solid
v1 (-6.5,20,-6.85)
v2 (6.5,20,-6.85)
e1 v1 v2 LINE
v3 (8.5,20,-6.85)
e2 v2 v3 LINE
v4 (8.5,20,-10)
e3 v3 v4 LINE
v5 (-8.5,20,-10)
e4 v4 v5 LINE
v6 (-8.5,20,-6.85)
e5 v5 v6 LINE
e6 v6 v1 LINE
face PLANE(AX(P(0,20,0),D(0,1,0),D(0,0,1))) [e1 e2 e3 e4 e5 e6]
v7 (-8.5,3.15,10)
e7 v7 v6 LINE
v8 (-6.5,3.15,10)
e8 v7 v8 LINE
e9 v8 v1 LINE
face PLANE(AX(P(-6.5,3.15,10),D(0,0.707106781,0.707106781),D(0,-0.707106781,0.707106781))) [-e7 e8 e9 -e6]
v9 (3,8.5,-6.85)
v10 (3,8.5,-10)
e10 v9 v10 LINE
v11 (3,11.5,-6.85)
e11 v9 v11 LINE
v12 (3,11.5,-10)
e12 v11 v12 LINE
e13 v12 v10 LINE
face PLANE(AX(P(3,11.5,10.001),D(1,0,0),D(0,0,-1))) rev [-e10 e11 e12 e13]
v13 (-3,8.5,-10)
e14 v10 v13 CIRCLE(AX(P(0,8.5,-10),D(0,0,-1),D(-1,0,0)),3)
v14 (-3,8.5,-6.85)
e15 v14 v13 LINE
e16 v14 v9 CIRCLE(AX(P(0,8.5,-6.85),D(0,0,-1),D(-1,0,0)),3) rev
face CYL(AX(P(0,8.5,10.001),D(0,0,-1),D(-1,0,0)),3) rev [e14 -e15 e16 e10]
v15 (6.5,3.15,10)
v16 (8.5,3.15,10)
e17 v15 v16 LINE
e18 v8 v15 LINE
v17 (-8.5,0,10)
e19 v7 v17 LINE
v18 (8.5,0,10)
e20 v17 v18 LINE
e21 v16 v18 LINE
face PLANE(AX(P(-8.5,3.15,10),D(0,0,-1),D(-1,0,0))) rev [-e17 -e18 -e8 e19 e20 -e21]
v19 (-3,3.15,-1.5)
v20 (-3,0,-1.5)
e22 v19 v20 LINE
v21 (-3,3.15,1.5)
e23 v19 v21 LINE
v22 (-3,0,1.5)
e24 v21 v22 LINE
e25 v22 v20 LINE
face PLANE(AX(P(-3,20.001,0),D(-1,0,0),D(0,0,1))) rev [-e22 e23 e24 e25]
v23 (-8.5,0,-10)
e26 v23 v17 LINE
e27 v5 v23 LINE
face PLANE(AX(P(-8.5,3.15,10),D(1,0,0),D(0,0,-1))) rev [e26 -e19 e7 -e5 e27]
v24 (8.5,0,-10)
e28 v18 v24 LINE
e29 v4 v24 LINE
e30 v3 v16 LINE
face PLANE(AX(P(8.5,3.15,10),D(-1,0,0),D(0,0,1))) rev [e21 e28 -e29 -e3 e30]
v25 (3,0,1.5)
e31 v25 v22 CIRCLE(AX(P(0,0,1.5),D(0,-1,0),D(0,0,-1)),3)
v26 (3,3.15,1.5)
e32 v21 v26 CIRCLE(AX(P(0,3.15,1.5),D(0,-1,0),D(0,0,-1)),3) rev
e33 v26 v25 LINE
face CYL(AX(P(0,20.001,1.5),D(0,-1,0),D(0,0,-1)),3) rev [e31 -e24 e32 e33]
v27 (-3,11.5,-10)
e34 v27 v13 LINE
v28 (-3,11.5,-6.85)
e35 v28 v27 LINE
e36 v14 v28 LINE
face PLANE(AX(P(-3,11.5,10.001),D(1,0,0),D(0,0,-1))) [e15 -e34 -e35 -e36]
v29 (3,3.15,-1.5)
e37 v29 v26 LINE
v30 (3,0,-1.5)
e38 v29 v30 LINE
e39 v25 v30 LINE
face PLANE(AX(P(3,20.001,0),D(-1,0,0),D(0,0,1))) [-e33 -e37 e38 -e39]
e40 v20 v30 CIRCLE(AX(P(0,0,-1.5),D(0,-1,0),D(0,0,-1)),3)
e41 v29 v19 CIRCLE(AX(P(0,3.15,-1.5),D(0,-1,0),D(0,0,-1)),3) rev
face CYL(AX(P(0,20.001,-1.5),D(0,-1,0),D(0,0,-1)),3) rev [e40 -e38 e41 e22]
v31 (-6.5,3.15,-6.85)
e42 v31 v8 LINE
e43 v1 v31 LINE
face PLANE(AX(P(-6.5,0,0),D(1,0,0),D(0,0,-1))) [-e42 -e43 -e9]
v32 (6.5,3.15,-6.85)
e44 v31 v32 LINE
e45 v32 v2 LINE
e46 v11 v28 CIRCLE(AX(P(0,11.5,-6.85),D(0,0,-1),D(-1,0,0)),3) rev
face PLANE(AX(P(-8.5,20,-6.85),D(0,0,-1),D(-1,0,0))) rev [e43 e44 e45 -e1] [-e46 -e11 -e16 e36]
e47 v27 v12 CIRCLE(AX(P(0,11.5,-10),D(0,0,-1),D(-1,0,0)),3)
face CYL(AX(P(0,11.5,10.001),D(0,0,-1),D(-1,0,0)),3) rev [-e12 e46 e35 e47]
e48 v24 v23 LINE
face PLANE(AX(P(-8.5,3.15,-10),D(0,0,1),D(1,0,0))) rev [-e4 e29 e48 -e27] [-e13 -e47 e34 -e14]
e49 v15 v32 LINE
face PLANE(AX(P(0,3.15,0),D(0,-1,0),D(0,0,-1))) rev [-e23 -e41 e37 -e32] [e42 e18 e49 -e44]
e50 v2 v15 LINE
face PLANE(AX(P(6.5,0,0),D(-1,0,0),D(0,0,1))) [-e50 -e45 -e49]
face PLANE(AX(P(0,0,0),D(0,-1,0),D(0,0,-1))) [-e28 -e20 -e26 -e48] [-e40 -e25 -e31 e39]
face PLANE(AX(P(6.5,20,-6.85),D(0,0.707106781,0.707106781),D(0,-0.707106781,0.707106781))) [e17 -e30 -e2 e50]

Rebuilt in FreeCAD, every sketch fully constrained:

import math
import FreeCAD as App
import Part
import Sketcher
from FreeCAD import Vector

doc = App.newDocument("Part")
body = doc.addObject("PartDesign::Body", "Body")

# Sketch on XZ plane
sketch1 = body.newObject("Sketcher::SketchObject", "Sketch")
sketch1.AttachmentSupport = (doc.getObject("XZ_Plane"), [""])
sketch1.MapMode = "FlatFace"
sketch1.addGeometry([
    Part.LineSegment(Vector(-8, -10, 0), Vector(-8, 10, 0)),
    Part.LineSegment(Vector(-8, 10, 0), Vector(8, 10, 0)),
    Part.LineSegment(Vector(8, 10, 0), Vector(8, -10, 0)),
    Part.LineSegment(Vector(8, -10, 0), Vector(-8, -10, 0)),
], False)
sketch1.addConstraint([
    Sketcher.Constraint("Coincident", 0, 2, 1, 1),
    Sketcher.Constraint("Coincident", 1, 2, 2, 1),
    Sketcher.Constraint("Coincident", 2, 2, 3, 1),
    Sketcher.Constraint("Coincident", 3, 2, 0, 1),
    Sketcher.Constraint("Vertical", 0),
    Sketcher.Constraint("Horizontal", 1),
    Sketcher.Constraint("Vertical", 2),
    Sketcher.Constraint("Horizontal", 3),
    Sketcher.Constraint("Symmetric", 0, 2, 2, 2, -1, 1),
    Sketcher.Constraint("DistanceX", 1, 1, 1, 2, 17.0),
    Sketcher.Constraint("DistanceY", 0, 1, 0, 2, 20.0),
])
pad1 = body.newObject("PartDesign::Pad", "Pad")
pad1.Profile = sketch1
pad1.Length = 3.15
pad1.Reversed = True

# Sketch on XZ plane
sketch2 = body.newObject("Sketcher::SketchObject", "Sketch001")
sketch2.AttachmentSupport = (doc.getObject("XZ_Plane"), [""])
sketch2.MapMode = "FlatFace"
sketch2.AttachmentOffset = App.Placement(Vector(0, 0, -3.15), App.Rotation())
sketch2.addGeometry([
    Part.LineSegment(Vector(-8.5, -10, 0), Vector(-8.5, -6.8, 0)),
    Part.LineSegment(Vector(-8.5, -6.8, 0), Vector(8.5, -6.8, 0)),
    Part.LineSegment(Vector(8.5, -6.8, 0), Vector(8.5, -10, 0)),
    Part.LineSegment(Vector(8.5, -10, 0), Vector(-8.5, -10, 0)),
], False)
sketch2.addConstraint([
    Sketcher.Constraint("Coincident", 0, 2, 1, 1),
    Sketcher.Constraint("Coincident", 1, 2, 2, 1),
    Sketcher.Constraint("Coincident", 2, 2, 3, 1),
    Sketcher.Constraint("Coincident", 3, 2, 0, 1),
    Sketcher.Constraint("Vertical", 0),
    Sketcher.Constraint("Horizontal", 1),
    Sketcher.Constraint("Vertical", 2),
    Sketcher.Constraint("Horizontal", 3),
    Sketcher.Constraint("DistanceX", 1, 1, 1, 2, 17.0),
    Sketcher.Constraint("DistanceY", 2, 2, -1, 1, 10.0),
    Sketcher.Constraint("DistanceY", 0, 1, 0, 2, 3.15),
    Sketcher.Constraint("DistanceX", 0, 2, -1, 1, 8.5),
])
pad2 = body.newObject("PartDesign::Pad", "Pad001")
pad2.Profile = sketch2
pad2.Length = 16.85
pad2.Reversed = True

# Sketch on XZ plane
sketch3 = body.newObject("Sketcher::SketchObject", "Sketch002")
sketch3.AttachmentSupport = (doc.getObject("XZ_Plane"), [""])
sketch3.MapMode = "FlatFace"
sketch3.addGeometry([
    Part.ArcOfCircle(Part.Circle(Vector(0, -1.5, 0), Vector(0, 0, 1), 3), math.radians(180), math.radians(360)),
    Part.LineSegment(Vector(3, -1.5, 0), Vector(-3, -1.5, 0)),
], False)
sketch3.addConstraint([
    Sketcher.Constraint("Coincident", 0, 1, 1, 2),
    Sketcher.Constraint("Coincident", 1, 1, 0, 2),
    Sketcher.Constraint("Horizontal", 1),
    Sketcher.Constraint("PointOnObject", 0, 3, -2),
    Sketcher.Constraint("Radius", 0, 3.0),
    Sketcher.Constraint("DistanceY", 0, 3, -1, 1, 1.5),
    Sketcher.Constraint("DistanceY", 0, 1, -1, 1, 1.5),
])
pocket1 = body.newObject("PartDesign::Pocket", "Pocket")
pocket1.Profile = sketch3
pocket1.Type = "UpToFirst"

# Sketch on XZ plane
sketch4 = body.newObject("Sketcher::SketchObject", "Sketch003")
sketch4.AttachmentSupport = (doc.getObject("XZ_Plane"), [""])
sketch4.MapMode = "FlatFace"
sketch4.addGeometry(Part.Circle(Vector(0, 1.5, 0), Vector(0, 0, 1), 3), False)
sketch4.addConstraint([
    Sketcher.Constraint("PointOnObject", 0, 3, -2),
    Sketcher.Constraint("Diameter", 0, 6.0),
    Sketcher.Constraint("DistanceY", -1, 1, 0, 3, 1.5),
])
pocket2 = body.newObject("PartDesign::Pocket", "Pocket001")
pocket2.Profile = sketch4
pocket2.Type = "UpToFirst"

# Sketch on XZ plane
sketch5 = body.newObject("Sketcher::SketchObject", "Sketch004")
sketch5.AttachmentSupport = (doc.getObject("XZ_Plane"), [""])
sketch5.MapMode = "FlatFace"
sketch5.addGeometry(Part.Circle(Vector(0, -1.5, 0), Vector(0, 0, 1), 3), False)
sketch5.addConstraint([
    Sketcher.Constraint("PointOnObject", 0, 3, -2),
    Sketcher.Constraint("Diameter", 0, 6.0),
    Sketcher.Constraint("DistanceY", 0, 3, -1, 1, 1.5),
])
pocket3 = body.newObject("PartDesign::Pocket", "Pocket002")
pocket3.Profile = sketch5
pocket3.Type = "UpToFirst"

# Sketch on XZ plane
sketch6 = body.newObject("Sketcher::SketchObject", "Sketch005")
sketch6.AttachmentSupport = (doc.getObject("XZ_Plane"), [""])
sketch6.MapMode = "FlatFace"
sketch6.addGeometry([
    Part.LineSegment(Vector(0, -1.5, 0), Vector(3, -1.5, 0)),
    Part.ArcOfCircle(Part.Circle(Vector(0, -1.5, 0), Vector(0, 0, 1), 3), math.radians(0), math.radians(30)),
    Part.ArcOfCircle(Part.Circle(Vector(0, 1.5, 0), Vector(0, 0, 1), 3), math.radians(-90), math.radians(-30)),
], False)
sketch6.addConstraint([
    Sketcher.Constraint("Coincident", 0, 2, 1, 1),
    Sketcher.Constraint("Coincident", 1, 2, 2, 2),
    Sketcher.Constraint("Tangent", 2, 1, 0, 1),
    Sketcher.Constraint("Horizontal", 0),
    Sketcher.Constraint("Coincident", 2, 1, 1, 3),
    Sketcher.Constraint("Equal", 1, 2),
    Sketcher.Constraint("Symmetric", 1, 3, 2, 3, -1, 1),
    Sketcher.Constraint("Radius", 1, 3.0),
])
pocket4 = body.newObject("PartDesign::Pocket", "Pocket003")
pocket4.Profile = sketch6
pocket4.Length = 3.15

# Sketch on XZ plane
sketch7 = body.newObject("Sketcher::SketchObject", "Sketch006")
sketch7.AttachmentSupport = (doc.getObject("XZ_Plane"), [""])
sketch7.MapMode = "FlatFace"
sketch7.addGeometry([
    Part.ArcOfCircle(Part.Circle(Vector(0, 1.5, 0), Vector(0, 0, 1), 3), math.radians(-150), math.radians(-90)),
    Part.ArcOfCircle(Part.Circle(Vector(0, -1.5, 0), Vector(0, 0, 1), 3), math.radians(150), math.radians(180)),
    Part.LineSegment(Vector(-3, -1.5, 0), Vector(0, -1.5, 0)),
], False)
sketch7.addConstraint([
    Sketcher.Constraint("Coincident", 0, 1, 1, 1),
    Sketcher.Constraint("Coincident", 1, 2, 2, 1),
    Sketcher.Constraint("Tangent", 2, 2, 0, 2),
    Sketcher.Constraint("Horizontal", 2),
    Sketcher.Constraint("Coincident", 2, 2, 1, 3),
    Sketcher.Constraint("Equal", 0, 1),
    Sketcher.Constraint("Symmetric", 0, 3, 1, 3, -1, 1),
    Sketcher.Constraint("Radius", 0, 3.0),
])
pocket5 = body.newObject("PartDesign::Pocket", "Pocket004")
pocket5.Profile = sketch7
pocket5.Length = 3.15

# Sketch on XZ plane
sketch8 = body.newObject("Sketcher::SketchObject", "Sketch007")
sketch8.AttachmentSupport = (doc.getObject("XZ_Plane"), [""])
sketch8.MapMode = "FlatFace"
sketch8.addGeometry([
    Part.ArcOfCircle(Part.Circle(Vector(0, 1.5, 0), Vector(0, 0, 1), 3), math.radians(-30), math.radians(0)),
    Part.LineSegment(Vector(3, 1.5, 0), Vector(0, 1.5, 0)),
    Part.ArcOfCircle(Part.Circle(Vector(0, -1.5, 0), Vector(0, 0, 1), 3), math.radians(30), math.radians(90)),
], False)
sketch8.addConstraint([
    Sketcher.Constraint("Coincident", 0, 2, 1, 1),
    Sketcher.Constraint("Tangent", 1, 2, 2, 2),
    Sketcher.Constraint("Coincident", 2, 1, 0, 1),
    Sketcher.Constraint("Horizontal", 1),
    Sketcher.Constraint("Coincident", 1, 2, 0, 3),
    Sketcher.Constraint("Equal", 0, 2),
    Sketcher.Constraint("Symmetric", 0, 3, 2, 3, -1, 1),
    Sketcher.Constraint("Radius", 0, 3.0),
])
pocket6 = body.newObject("PartDesign::Pocket", "Pocket005")
pocket6.Profile = sketch8
pocket6.Length = 3.15

# Sketch on XZ plane
sketch9 = body.newObject("Sketcher::SketchObject", "Sketch008")
sketch9.AttachmentSupport = (doc.getObject("XZ_Plane"), [""])
sketch9.MapMode = "FlatFace"
sketch9.addGeometry([
    Part.ArcOfCircle(Part.Circle(Vector(0, -1.5, 0), Vector(0, 0, 1), 3), math.radians(90), math.radians(150)),
    Part.LineSegment(Vector(0, 1.5, 0), Vector(-3, 1.5, 0)),
    Part.ArcOfCircle(Part.Circle(Vector(0, 1.5, 0), Vector(0, 0, 1), 3), math.radians(180), math.radians(210)),
], False)
sketch9.addConstraint([
    Sketcher.Constraint("Tangent", 0, 1, 1, 1),
    Sketcher.Constraint("Coincident", 1, 2, 2, 1),
    Sketcher.Constraint("Coincident", 2, 2, 0, 2),
    Sketcher.Constraint("Horizontal", 1),
    Sketcher.Constraint("Coincident", 0, 1, 2, 3),
    Sketcher.Constraint("Equal", 0, 2),
    Sketcher.Constraint("Symmetric", 0, 3, 2, 3, -1, 1),
    Sketcher.Constraint("Radius", 0, 3.0),
])
pocket7 = body.newObject("PartDesign::Pocket", "Pocket006")
pocket7.Profile = sketch9
pocket7.Length = 3.15

# Sketch on XZ plane
sketch10 = body.newObject("Sketcher::SketchObject", "Sketch009")
sketch10.AttachmentSupport = (doc.getObject("XZ_Plane"), [""])
sketch10.MapMode = "FlatFace"
sketch10.addGeometry([
    Part.LineSegment(Vector(3, -1.5, 0), Vector(3, 1.5, 0)),
    Part.ArcOfCircle(Part.Circle(Vector(0, 1.5, 0), Vector(0, 0, 1), 3), math.radians(-30), math.radians(0)),
    Part.ArcOfCircle(Part.Circle(Vector(0, -1.5, 0), Vector(0, 0, 1), 3), math.radians(0), math.radians(30)),
], False)
sketch10.addConstraint([
    Sketcher.Constraint("Tangent", 0, 2, 1, 2),
    Sketcher.Constraint("Coincident", 1, 1, 2, 2),
    Sketcher.Constraint("Tangent", 2, 1, 0, 1),
    Sketcher.Constraint("Vertical", 0),
    Sketcher.Constraint("Equal", 1, 2),
    Sketcher.Constraint("Symmetric", 1, 3, 2, 3, -1, 1),
    Sketcher.Constraint("Radius", 1, 3.0),
    Sketcher.Constraint("DistanceY", 0, 1, 0, 2, 3.0),
])
pocket8 = body.newObject("PartDesign::Pocket", "Pocket007")
pocket8.Profile = sketch10
pocket8.Type = "UpToFirst"

# Sketch on XZ plane
sketch11 = body.newObject("Sketcher::SketchObject", "Sketch010")
sketch11.AttachmentSupport = (doc.getObject("XZ_Plane"), [""])
sketch11.MapMode = "FlatFace"
sketch11.addGeometry([
    Part.ArcOfCircle(Part.Circle(Vector(0, 1.5, 0), Vector(0, 0, 1), 3), math.radians(0), math.radians(180)),
    Part.LineSegment(Vector(-3, 1.5, 0), Vector(3, 1.5, 0)),
], False)
sketch11.addConstraint([
    Sketcher.Constraint("Coincident", 0, 1, 1, 2),
    Sketcher.Constraint("Coincident", 1, 1, 0, 2),
    Sketcher.Constraint("Horizontal", 1),
    Sketcher.Constraint("PointOnObject", 0, 3, -2),
    Sketcher.Constraint("Radius", 0, 3.0),
    Sketcher.Constraint("DistanceY", -1, 1, 0, 3, 1.5),
    Sketcher.Constraint("DistanceY", -1, 1, 0, 1, 1.5),
])
pocket9 = body.newObject("PartDesign::Pocket", "Pocket008")
pocket9.Profile = sketch11
pocket9.Length = 3.15

# Sketch on XZ plane
sketch12 = body.newObject("Sketcher::SketchObject", "Sketch011")
sketch12.AttachmentSupport = (doc.getObject("XZ_Plane"), [""])
sketch12.MapMode = "FlatFace"
sketch12.addGeometry([
    Part.LineSegment(Vector(0, -1.5, 0), Vector(3, -1.5, 0)),
    Part.ArcOfCircle(Part.Circle(Vector(0, -1.5, 0), Vector(0, 0, 1), 3), math.radians(0), math.radians(30)),
    Part.ArcOfCircle(Part.Circle(Vector(0, 1.5, 0), Vector(0, 0, 1), 3), math.radians(-90), math.radians(-30)),
], False)
sketch12.addConstraint([
    Sketcher.Constraint("Coincident", 0, 2, 1, 1),
    Sketcher.Constraint("Coincident", 1, 2, 2, 2),
    Sketcher.Constraint("Tangent", 2, 1, 0, 1),
    Sketcher.Constraint("Horizontal", 0),
    Sketcher.Constraint("Coincident", 2, 1, 1, 3),
    Sketcher.Constraint("Equal", 1, 2),
    Sketcher.Constraint("Symmetric", 1, 3, 2, 3, -1, 1),
    Sketcher.Constraint("Radius", 1, 3.0),
])
pocket10 = body.newObject("PartDesign::Pocket", "Pocket009")
pocket10.Profile = sketch12
pocket10.Length = 3.15

# Sketch on XZ plane
sketch13 = body.newObject("Sketcher::SketchObject", "Sketch012")
sketch13.AttachmentSupport = (doc.getObject("XZ_Plane"), [""])
sketch13.MapMode = "FlatFace"
sketch13.addGeometry([
    Part.ArcOfCircle(Part.Circle(Vector(0, 1.5, 0), Vector(0, 0, 1), 3), math.radians(-150), math.radians(-90)),
    Part.ArcOfCircle(Part.Circle(Vector(0, -1.5, 0), Vector(0, 0, 1), 3), math.radians(150), math.radians(180)),
    Part.LineSegment(Vector(-3, -1.5, 0), Vector(0, -1.5, 0)),
], False)
sketch13.addConstraint([
    Sketcher.Constraint("Coincident", 0, 1, 1, 1),
    Sketcher.Constraint("Coincident", 1, 2, 2, 1),
    Sketcher.Constraint("Tangent", 2, 2, 0, 2),
    Sketcher.Constraint("Horizontal", 2),
    Sketcher.Constraint("Coincident", 2, 2, 1, 3),
    Sketcher.Constraint("Equal", 0, 1),
    Sketcher.Constraint("Symmetric", 0, 3, 1, 3, -1, 1),
    Sketcher.Constraint("Radius", 0, 3.0),
])
pocket11 = body.newObject("PartDesign::Pocket", "Pocket010")
pocket11.Profile = sketch13
pocket11.Length = 3.15

# Sketch on XZ plane
sketch14 = body.newObject("Sketcher::SketchObject", "Sketch013")
sketch14.AttachmentSupport = (doc.getObject("XZ_Plane"), [""])
sketch14.MapMode = "FlatFace"
sketch14.addGeometry([
    Part.ArcOfCircle(Part.Circle(Vector(0, 1.5, 0), Vector(0, 0, 1), 3), math.radians(180), math.radians(210)),
    Part.LineSegment(Vector(-3, 1.5, 0), Vector(-3, -1.5, 0)),
    Part.ArcOfCircle(Part.Circle(Vector(0, -1.5, 0), Vector(0, 0, 1), 3), math.radians(150), math.radians(180)),
], False)
sketch14.addConstraint([
    Sketcher.Constraint("Tangent", 0, 1, 1, 1),
    Sketcher.Constraint("Tangent", 1, 2, 2, 2),
    Sketcher.Constraint("Coincident", 2, 1, 0, 2),
    Sketcher.Constraint("Vertical", 1),
    Sketcher.Constraint("Equal", 0, 2),
    Sketcher.Constraint("Symmetric", 0, 3, 2, 3, -1, 1),
    Sketcher.Constraint("Radius", 0, 3.0),
    Sketcher.Constraint("DistanceY", 1, 2, 1, 1, 3.0),
])
pocket12 = body.newObject("PartDesign::Pocket", "Pocket011")
pocket12.Profile = sketch14
pocket12.Type = "UpToFirst"

# Sketch on XZ plane
sketch15 = body.newObject("Sketcher::SketchObject", "Sketch014")
sketch15.AttachmentSupport = (doc.getObject("XZ_Plane"), [""])
sketch15.MapMode = "FlatFace"
sketch15.addGeometry([
    Part.ArcOfCircle(Part.Circle(Vector(0, 1.5, 0), Vector(0, 0, 1), 3), math.radians(-30), math.radians(0)),
    Part.LineSegment(Vector(3, 1.5, 0), Vector(0, 1.5, 0)),
    Part.ArcOfCircle(Part.Circle(Vector(0, -1.5, 0), Vector(0, 0, 1), 3), math.radians(30), math.radians(90)),
], False)
sketch15.addConstraint([
    Sketcher.Constraint("Coincident", 0, 2, 1, 1),
    Sketcher.Constraint("Tangent", 1, 2, 2, 2),
    Sketcher.Constraint("Coincident", 2, 1, 0, 1),
    Sketcher.Constraint("Horizontal", 1),
    Sketcher.Constraint("Coincident", 1, 2, 0, 3),
    Sketcher.Constraint("Equal", 0, 2),
    Sketcher.Constraint("Symmetric", 0, 3, 2, 3, -1, 1),
    Sketcher.Constraint("Radius", 0, 3.0),
])
pocket13 = body.newObject("PartDesign::Pocket", "Pocket012")
pocket13.Profile = sketch15
pocket13.Length = 3.15

# Sketch on XZ plane
sketch16 = body.newObject("Sketcher::SketchObject", "Sketch015")
sketch16.AttachmentSupport = (doc.getObject("XZ_Plane"), [""])
sketch16.MapMode = "FlatFace"
sketch16.addGeometry([
    Part.ArcOfCircle(Part.Circle(Vector(0, -1.5, 0), Vector(0, 0, 1), 3), math.radians(90), math.radians(150)),
    Part.LineSegment(Vector(0, 1.5, 0), Vector(-3, 1.5, 0)),
    Part.ArcOfCircle(Part.Circle(Vector(0, 1.5, 0), Vector(0, 0, 1), 3), math.radians(180), math.radians(210)),
], False)
sketch16.addConstraint([
    Sketcher.Constraint("Tangent", 0, 1, 1, 1),
    Sketcher.Constraint("Coincident", 1, 2, 2, 1),
    Sketcher.Constraint("Coincident", 2, 2, 0, 2),
    Sketcher.Constraint("Horizontal", 1),
    Sketcher.Constraint("Coincident", 0, 1, 2, 3),
    Sketcher.Constraint("Equal", 0, 2),
    Sketcher.Constraint("Symmetric", 0, 3, 2, 3, -1, 1),
    Sketcher.Constraint("Radius", 0, 3.0),
])
pocket14 = body.newObject("PartDesign::Pocket", "Pocket013")
pocket14.Profile = sketch16
pocket14.Length = 3.15

# Sketch on XY plane
sketch17 = body.newObject("Sketcher::SketchObject", "Sketch016")
sketch17.AttachmentSupport = (doc.getObject("XY_Plane"), [""])
sketch17.MapMode = "FlatFace"
sketch17.AttachmentOffset = App.Placement(Vector(0, 0, -10), App.Rotation())
sketch17.addGeometry(Part.Circle(Vector(0, 8.5, 0), Vector(0, 0, 1), 3), False)
sketch17.addConstraint([
    Sketcher.Constraint("PointOnObject", 0, 3, -2),
    Sketcher.Constraint("Diameter", 0, 6.0),
    Sketcher.Constraint("DistanceY", -1, 1, 0, 3, 8.5),
])
pocket15 = body.newObject("PartDesign::Pocket", "Pocket014")
pocket15.Profile = sketch17
pocket15.Type = "UpToFirst"
pocket15.Reversed = True

# Sketch on XY plane
sketch18 = body.newObject("Sketcher::SketchObject", "Sketch017")
sketch18.AttachmentSupport = (doc.getObject("XY_Plane"), [""])
sketch18.MapMode = "FlatFace"
sketch18.AttachmentOffset = App.Placement(Vector(0, 0, -10), App.Rotation())
sketch18.addGeometry(Part.Circle(Vector(0, 11.5, 0), Vector(0, 0, 1), 3), False)
sketch18.addConstraint([
    Sketcher.Constraint("PointOnObject", 0, 3, -2),
    Sketcher.Constraint("Diameter", 0, 6.0),
    Sketcher.Constraint("DistanceY", -1, 1, 0, 3, 11.5),
])
pocket16 = body.newObject("PartDesign::Pocket", "Pocket015")
pocket16.Profile = sketch18
pocket16.Type = "UpToFirst"
pocket16.Reversed = True

# Sketch on XY plane
sketch19 = body.newObject("Sketcher::SketchObject", "Sketch018")
sketch19.AttachmentSupport = (doc.getObject("XY_Plane"), [""])
sketch19.MapMode = "FlatFace"
sketch19.AttachmentOffset = App.Placement(Vector(0, 0, -10), App.Rotation())
sketch19.addGeometry([
    Part.LineSegment(Vector(3, 11.5, 0), Vector(3, 8.5, 0)),
    Part.LineSegment(Vector(3, 8.5, 0), Vector(-3, 8.5, 0)),
    Part.LineSegment(Vector(-3, 8.5, 0), Vector(-3, 11.5, 0)),
    Part.LineSegment(Vector(-3, 11.5, 0), Vector(3, 11.5, 0)),
], False)
sketch19.addConstraint([
    Sketcher.Constraint("Coincident", 0, 2, 1, 1),
    Sketcher.Constraint("Coincident", 1, 2, 2, 1),
    Sketcher.Constraint("Coincident", 2, 2, 3, 1),
    Sketcher.Constraint("Coincident", 3, 2, 0, 1),
    Sketcher.Constraint("Vertical", 0),
    Sketcher.Constraint("Horizontal", 1),
    Sketcher.Constraint("Vertical", 2),
    Sketcher.Constraint("Horizontal", 3),
    Sketcher.Constraint("DistanceX", 1, 2, 1, 1, 6.0),
    Sketcher.Constraint("DistanceY", 0, 2, 0, 1, 3.0),
    Sketcher.Constraint("DistanceX", -1, 1, 0, 2, 3.0),
    Sketcher.Constraint("DistanceY", -1, 1, 0, 2, 8.5),
])
pocket17 = body.newObject("PartDesign::Pocket", "Pocket016")
pocket17.Profile = sketch19
pocket17.Length = 3.15
pocket17.Reversed = True

# Sketch on YZ plane
sketch20 = body.newObject("Sketcher::SketchObject", "Sketch019")
sketch20.AttachmentSupport = (doc.getObject("YZ_Plane"), [""])
sketch20.MapMode = "FlatFace"
sketch20.AttachmentOffset = App.Placement(Vector(0, 0, 8.5), App.Rotation())
sketch20.addGeometry([
    Part.LineSegment(Vector(20, -7, 0), Vector(3, 10, 0)),
    Part.LineSegment(Vector(3, 10, 0), Vector(3, -7, 0)),
    Part.LineSegment(Vector(3, -7, 0), Vector(20, -7, 0)),
], False)
sketch20.addConstraint([
    Sketcher.Constraint("Coincident", 0, 2, 1, 1),
    Sketcher.Constraint("Coincident", 1, 2, 2, 1),
    Sketcher.Constraint("Coincident", 2, 2, 0, 1),
    Sketcher.Constraint("Vertical", 1),
    Sketcher.Constraint("Horizontal", 2),
    Sketcher.Constraint("Equal", 2, 1),
    Sketcher.Constraint("DistanceY", -1, 1, 0, 2, 10.0),
    Sketcher.Constraint("DistanceX", -1, 1, 2, 2, 20.0),
    Sketcher.Constraint("DistanceX", 2, 1, 2, 2, 16.85),
])
pad3 = body.newObject("PartDesign::Pad", "Pad002")
pad3.Profile = sketch20
pad3.Length = 2
pad3.Reversed = True

# Sketch on YZ plane
sketch21 = body.newObject("Sketcher::SketchObject", "Sketch020")
sketch21.AttachmentSupport = (doc.getObject("YZ_Plane"), [""])
sketch21.MapMode = "FlatFace"
sketch21.AttachmentOffset = App.Placement(Vector(0, 0, -8.5), App.Rotation())
sketch21.addGeometry([
    Part.LineSegment(Vector(3, 10, 0), Vector(20, -7, 0)),
    Part.LineSegment(Vector(20, -7, 0), Vector(3, -7, 0)),
    Part.LineSegment(Vector(3, -7, 0), Vector(3, 10, 0)),
], False)
sketch21.addConstraint([
    Sketcher.Constraint("Coincident", 0, 2, 1, 1),
    Sketcher.Constraint("Coincident", 1, 2, 2, 1),
    Sketcher.Constraint("Coincident", 2, 2, 0, 1),
    Sketcher.Constraint("Horizontal", 1),
    Sketcher.Constraint("Vertical", 2),
    Sketcher.Constraint("Equal", 1, 2),
    Sketcher.Constraint("DistanceX", -1, 1, 0, 2, 20.0),
    Sketcher.Constraint("DistanceY", -1, 1, 2, 2, 10.0),
    Sketcher.Constraint("DistanceX", 1, 2, 1, 1, 16.85),
])
pad4 = body.newObject("PartDesign::Pad", "Pad003")
pad4.Profile = sketch21
pad4.Length = 2

doc.recompute()
